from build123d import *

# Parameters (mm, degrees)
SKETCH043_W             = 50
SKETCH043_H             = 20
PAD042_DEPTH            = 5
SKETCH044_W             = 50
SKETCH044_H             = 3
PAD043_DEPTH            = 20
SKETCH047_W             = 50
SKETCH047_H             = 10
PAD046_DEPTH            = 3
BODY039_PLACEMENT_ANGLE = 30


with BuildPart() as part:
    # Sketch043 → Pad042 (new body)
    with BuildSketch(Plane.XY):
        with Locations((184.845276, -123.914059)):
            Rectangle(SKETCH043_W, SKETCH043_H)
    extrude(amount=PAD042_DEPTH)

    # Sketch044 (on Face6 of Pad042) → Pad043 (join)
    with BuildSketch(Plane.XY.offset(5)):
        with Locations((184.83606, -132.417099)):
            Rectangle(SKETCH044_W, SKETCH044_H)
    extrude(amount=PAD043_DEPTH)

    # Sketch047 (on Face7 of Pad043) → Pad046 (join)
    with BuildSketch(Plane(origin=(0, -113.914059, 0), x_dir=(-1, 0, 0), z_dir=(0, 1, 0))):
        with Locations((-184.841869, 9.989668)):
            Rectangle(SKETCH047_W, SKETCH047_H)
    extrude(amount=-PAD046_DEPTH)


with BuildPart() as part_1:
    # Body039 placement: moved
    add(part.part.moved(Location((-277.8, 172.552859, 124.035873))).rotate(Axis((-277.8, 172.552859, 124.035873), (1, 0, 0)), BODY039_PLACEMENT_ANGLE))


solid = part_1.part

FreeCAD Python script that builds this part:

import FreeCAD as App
import Part
import Sketcher
from FreeCAD import Vector

doc = App.newDocument("Part")
params = doc.addObject("Spreadsheet::Sheet", "Params")
for row, (alias, value) in enumerate([
    ("sketch1_width", "50 mm"),
    ("sketch1_height", "20 mm"),
    ("pad1_length", "5 mm"),
    ("sketch2_width", "50 mm"),
    ("sketch2_height", "3 mm"),
    ("pad2_length", "20 mm"),
    ("sketch3_width", "50 mm"),
    ("sketch3_height", "10 mm"),
    ("pad3_length", "3 mm"),
], start=1):
    params.set(f"A{row}", alias)
    params.set(f"B{row}", "=" + value)
    params.setAlias(f"B{row}", alias)

body = doc.addObject("PartDesign::Body", "Body")

sketch1 = body.newObject("Sketcher::SketchObject", "Sketch")
sketch1.AttachmentSupport = (doc.getObject("XY_Plane"), [""])
sketch1.MapMode = "FlatFace"
sketch1.addGeometry([
    Part.LineSegment(Vector(160, -114, 0), Vector(160, -134, 0)),
    Part.LineSegment(Vector(160, -134, 0), Vector(210, -134, 0)),
    Part.LineSegment(Vector(210, -134, 0), Vector(210, -114, 0)),
    Part.LineSegment(Vector(210, -114, 0), Vector(160, -114, 0)),
], False)
sketch1.addConstraint([
    Sketcher.Constraint("Coincident", 0, 2, 1, 1),
    Sketcher.Constraint("Coincident", 1, 2, 2, 1),
    Sketcher.Constraint("Coincident", 2, 2, 3, 1),
    Sketcher.Constraint("Coincident", 3, 2, 0, 1),
    Sketcher.Constraint("Vertical", 0),
    Sketcher.Constraint("Horizontal", 1),
    Sketcher.Constraint("Vertical", 2),
    Sketcher.Constraint("Horizontal", 3),
    Sketcher.Constraint("DistanceX", 1, 1, 1, 2, 50.0),
    Sketcher.Constraint("DistanceY", 0, 2, 0, 1, 20.0),
    Sketcher.Constraint("DistanceY", 0, 2, -1, 1, 133.914059),
    Sketcher.Constraint("DistanceX", -1, 1, 0, 2, 159.845276),
])
sketch1.setExpression("Constraints[8]", "Params.sketch1_width")
sketch1.setExpression("Constraints[9]", "Params.sketch1_height")
pad1 = body.newObject("PartDesign::Pad", "Pad")
pad1.Profile = sketch1
pad1.setExpression("Length", "Params.pad1_length")

sketch2 = body.newObject("Sketcher::SketchObject", "Sketch001")
sketch2.AttachmentSupport = (doc.getObject("XY_Plane"), [""])
sketch2.MapMode = "FlatFace"
sketch2.AttachmentOffset = App.Placement(Vector(0, 0, 5), App.Rotation())
sketch2.addGeometry([
    Part.LineSegment(Vector(159.8, -130.9, 0), Vector(159.8, -133.9, 0)),
    Part.LineSegment(Vector(159.8, -133.9, 0), Vector(209.8, -133.9, 0)),
    Part.LineSegment(Vector(209.8, -133.9, 0), Vector(209.8, -130.9, 0)),
    Part.LineSegment(Vector(209.8, -130.9, 0), Vector(159.8, -130.9, 0)),
], False)
sketch2.addConstraint([
    Sketcher.Constraint("Coincident", 0, 2, 1, 1),
    Sketcher.Constraint("Coincident", 1, 2, 2, 1),
    Sketcher.Constraint("Coincident", 2, 2, 3, 1),
    Sketcher.Constraint("Coincident", 3, 2, 0, 1),
    Sketcher.Constraint("Vertical", 0),
    Sketcher.Constraint("Horizontal", 1),
    Sketcher.Constraint("Vertical", 2),
    Sketcher.Constraint("Horizontal", 3),
    Sketcher.Constraint("DistanceX", 1, 1, 1, 2, 50.0),
    Sketcher.Constraint("DistanceY", 0, 2, 0, 1, 3.0),
    Sketcher.Constraint("DistanceY", 0, 2, -1, 1, 133.917099),
    Sketcher.Constraint("DistanceX", -1, 1, 0, 2, 159.83606),
])
sketch2.setExpression("Constraints[8]", "Params.sketch2_width")
sketch2.setExpression("Constraints[9]", "Params.sketch2_height")
pad2 = body.newObject("PartDesign::Pad", "Pad001")
pad2.Profile = sketch2
pad2.setExpression("Length", "Params.pad2_length")

sketch3 = body.newObject("Sketcher::SketchObject", "Sketch002")
sketch3.AttachmentSupport = (doc.getObject("XZ_Plane"), [""])
sketch3.MapMode = "FlatFace"
sketch3.AttachmentOffset = App.Placement(Vector(0, 0, 113.914059), App.Rotation())
sketch3.addGeometry([
    Part.LineSegment(Vector(210, 15, 0), Vector(210, 5, 0)),
    Part.LineSegment(Vector(210, 5, 0), Vector(160, 5, 0)),
    Part.LineSegment(Vector(160, 5, 0), Vector(160, 15, 0)),
    Part.LineSegment(Vector(160, 15, 0), Vector(210, 15, 0)),
], False)
sketch3.addConstraint([
    Sketcher.Constraint("Coincident", 0, 2, 1, 1),
    Sketcher.Constraint("Coincident", 1, 2, 2, 1),
    Sketcher.Constraint("Coincident", 2, 2, 3, 1),
    Sketcher.Constraint("Coincident", 3, 2, 0, 1),
    Sketcher.Constraint("Vertical", 0),
    Sketcher.Constraint("Horizontal", 1),
    Sketcher.Constraint("Vertical", 2),
    Sketcher.Constraint("Horizontal", 3),
    Sketcher.Constraint("DistanceX", 1, 2, 1, 1, 50.0),
    Sketcher.Constraint("DistanceY", 0, 2, 0, 1, 10.0),
    Sketcher.Constraint("DistanceX", -1, 1, 0, 2, 209.841869),
    Sketcher.Constraint("DistanceY", -1, 1, 0, 2, 4.989668),
])
sketch3.setExpression("Constraints[8]", "Params.sketch3_width")
sketch3.setExpression("Constraints[9]", "Params.sketch3_height")
pad3 = body.newObject("PartDesign::Pad", "Pad002")
pad3.Profile = sketch3
pad3.setExpression("Length", "Params.pad3_length")
body2 = doc.addObject("PartDesign::Body", "Body001")
doc.recompute()

body.Placement = App.Placement(Vector(-277.8, 172.552859, 124.035873), App.Rotation(Vector(1, 0, 0), 30))
boolean = body2.newObject("PartDesign::Boolean", "Boolean")
boolean.Type = "Fuse"
boolean.addObjects([body])

doc.recompute()
